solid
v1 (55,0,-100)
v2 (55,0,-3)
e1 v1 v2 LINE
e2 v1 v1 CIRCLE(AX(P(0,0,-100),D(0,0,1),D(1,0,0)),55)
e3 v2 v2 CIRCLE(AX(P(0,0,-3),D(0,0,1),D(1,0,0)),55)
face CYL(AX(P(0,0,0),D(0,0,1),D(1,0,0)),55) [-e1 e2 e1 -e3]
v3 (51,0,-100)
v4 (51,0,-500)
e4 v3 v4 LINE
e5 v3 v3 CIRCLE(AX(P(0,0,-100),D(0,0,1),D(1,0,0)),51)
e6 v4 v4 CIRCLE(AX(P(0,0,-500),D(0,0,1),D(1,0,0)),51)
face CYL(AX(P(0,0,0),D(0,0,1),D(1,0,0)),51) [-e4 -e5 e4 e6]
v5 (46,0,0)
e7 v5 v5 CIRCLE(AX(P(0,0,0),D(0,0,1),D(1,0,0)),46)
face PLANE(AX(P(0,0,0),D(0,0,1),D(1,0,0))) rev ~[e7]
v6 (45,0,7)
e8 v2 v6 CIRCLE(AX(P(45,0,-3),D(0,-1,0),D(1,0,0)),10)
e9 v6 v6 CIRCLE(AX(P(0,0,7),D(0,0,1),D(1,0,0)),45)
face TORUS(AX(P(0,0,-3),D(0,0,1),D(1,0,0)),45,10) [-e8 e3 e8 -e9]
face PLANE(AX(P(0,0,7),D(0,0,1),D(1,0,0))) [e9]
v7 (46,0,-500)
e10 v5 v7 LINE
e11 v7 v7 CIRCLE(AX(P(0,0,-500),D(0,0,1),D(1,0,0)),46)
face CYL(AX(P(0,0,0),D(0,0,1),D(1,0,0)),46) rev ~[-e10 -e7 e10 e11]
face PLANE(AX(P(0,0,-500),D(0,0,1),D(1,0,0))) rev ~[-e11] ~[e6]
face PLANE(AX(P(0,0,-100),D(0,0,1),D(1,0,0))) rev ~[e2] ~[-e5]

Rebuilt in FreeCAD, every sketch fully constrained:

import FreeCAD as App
import Part
import Sketcher
from FreeCAD import Vector


def edges_at(feature, points):
    """Names of the edges that pass closest to the given points."""
    edges = feature.Shape.Edges
    near = lambda p: min(range(len(edges)), key=lambda i: edges[i].distToShape(Part.Vertex(*p))[0])
    return sorted({f"Edge{near(p) + 1}" for p in points})

doc = App.newDocument("Part")
body = doc.addObject("PartDesign::Body", "Body")

# Sketch on XY plane
sketch1 = doc.addObject("Sketcher::SketchObject", "Sketch")
body.addObject(sketch1)
sketch1.AttachmentSupport = (doc.XY_Plane, [""])
sketch1.MapMode = "FlatFace"
sketch1.addGeometry(Part.Circle(Vector(0, 0, 0), Vector(0, 0, 1), 55), False)
sketch1.addConstraint(Sketcher.Constraint("Coincident", 0, 3, -1, 1))
sketch1.addConstraint(Sketcher.Constraint("Diameter", 0, 110.0))
pad1 = doc.addObject("PartDesign::Pad", "Pad")
body.addObject(pad1)
pad1.Profile = sketch1
pad1.Length = 7

# Sketch on XY plane
sketch2 = doc.addObject("Sketcher::SketchObject", "Sketch001")
body.addObject(sketch2)
sketch2.AttachmentSupport = (doc.XY_Plane, [""])
sketch2.MapMode = "FlatFace"
sketch2.addGeometry(Part.Circle(Vector(0, 0, 0), Vector(0, 0, 1), 51), False)
sketch2.addGeometry(Part.Circle(Vector(0, 0, 0), Vector(0, 0, 1), 46), False)
sketch2.addConstraint(Sketcher.Constraint("Coincident", 0, 3, -1, 1))
sketch2.addConstraint(Sketcher.Constraint("Coincident", 1, 3, -1, 1))
sketch2.addConstraint(Sketcher.Constraint("Diameter", 0, 102.0))
sketch2.addConstraint(Sketcher.Constraint("Diameter", 1, 92.0))
pad2 = doc.addObject("PartDesign::Pad", "Pad001")
body.addObject(pad2)
pad2.Profile = sketch2
pad2.Length = 500
pad2.Reversed = True

# Sketch on XY plane
sketch3 = doc.addObject("Sketcher::SketchObject", "Sketch002")
body.addObject(sketch3)
sketch3.AttachmentSupport = (doc.XY_Plane, [""])
sketch3.MapMode = "FlatFace"
sketch3.addGeometry(Part.Circle(Vector(0, 0, 0), Vector(0, 0, 1), 55), False)
sketch3.addGeometry(Part.Circle(Vector(0, 0, 0), Vector(0, 0, 1), 51), False)
sketch3.addConstraint(Sketcher.Constraint("Coincident", 0, 3, -1, 1))
sketch3.addConstraint(Sketcher.Constraint("Coincident", 1, 3, -1, 1))
sketch3.addConstraint(Sketcher.Constraint("Diameter", 0, 110.0))
sketch3.addConstraint(Sketcher.Constraint("Diameter", 1, 102.0))
pad3 = doc.addObject("PartDesign::Pad", "Pad002")
body.addObject(pad3)
pad3.Profile = sketch3
pad3.Length = 100
pad3.Reversed = True
doc.recompute()

fillet = doc.addObject("PartDesign::Fillet", "Fillet")
body.addObject(fillet)
fillet.Base = (pad3, edges_at(pad3, [(-55, 0, 7)]))
fillet.Radius = 10

doc.recompute()
